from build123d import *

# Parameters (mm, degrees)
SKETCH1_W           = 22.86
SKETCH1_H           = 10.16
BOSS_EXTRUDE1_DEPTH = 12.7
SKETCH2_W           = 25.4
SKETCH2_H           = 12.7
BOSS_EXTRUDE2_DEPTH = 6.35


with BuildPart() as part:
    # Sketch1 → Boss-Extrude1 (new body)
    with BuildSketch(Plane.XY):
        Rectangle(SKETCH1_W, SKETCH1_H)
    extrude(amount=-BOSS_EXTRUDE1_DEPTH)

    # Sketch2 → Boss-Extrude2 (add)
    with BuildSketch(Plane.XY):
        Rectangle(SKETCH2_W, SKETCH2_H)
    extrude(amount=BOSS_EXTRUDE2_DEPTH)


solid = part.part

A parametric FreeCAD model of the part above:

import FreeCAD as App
import Part
import Sketcher

V = App.Vector
Q = App.Units.Quantity


def add_polygon(sketch, points):
    """Adds a closed chain of lines whose ends are joined by coincident constraints."""
    first, n = sketch.GeometryCount, len(points)
    for a, b in zip(points, points[1:] + points[:1]):
        sketch.addGeometry(Part.LineSegment(App.Vector(*a, 0), App.Vector(*b, 0)), False)
    for i in range(n):
        sketch.addConstraint(Sketcher.Constraint("Coincident", first + i, 2, first + (i + 1) % n, 1))

doc = App.newDocument("Part")
body = doc.addObject("PartDesign::Body", "Body")

# Sketch on XY plane
sketch1 = body.newObject("Sketcher::SketchObject", "Sketch")
sketch1.AttachmentSupport = (doc.getObject("XY_Plane"), [""])
sketch1.MapMode = "FlatFace"
add_polygon(sketch1, [(-11, 5), (-11, -5), (11, -5), (11, 5)])  # lines 0-3
sketch1.addConstraint(Sketcher.Constraint("Vertical", 0))
sketch1.addConstraint(Sketcher.Constraint("Horizontal", 1))
sketch1.addConstraint(Sketcher.Constraint("Vertical", 2))
sketch1.addConstraint(Sketcher.Constraint("Horizontal", 3))
sketch1.addConstraint(Sketcher.Constraint("Symmetric", 0, 2, 2, 2, -1, 1))
sketch1.addConstraint(Sketcher.Constraint("DistanceX", 1, 1, 1, 2, Q("0.9 in")))
sketch1.addConstraint(Sketcher.Constraint("DistanceY", 0, 2, 0, 1, Q("0.4 in")))
pad1 = body.newObject("PartDesign::Pad", "Pad")
pad1.Profile = sketch1
pad1.Length = Q("0.5 in")
pad1.Reversed = True

# Sketch on XY plane
sketch2 = body.newObject("Sketcher::SketchObject", "Sketch001")
sketch2.AttachmentSupport = (doc.getObject("XY_Plane"), [""])
sketch2.MapMode = "FlatFace"
add_polygon(sketch2, [(-13, 6), (-13, -6), (13, -6), (13, 6)])  # lines 0-3
sketch2.addConstraint(Sketcher.Constraint("Vertical", 0))
sketch2.addConstraint(Sketcher.Constraint("Horizontal", 1))
sketch2.addConstraint(Sketcher.Constraint("Vertical", 2))
sketch2.addConstraint(Sketcher.Constraint("Horizontal", 3))
sketch2.addConstraint(Sketcher.Constraint("Symmetric", 0, 2, 2, 2, -1, 1))
sketch2.addConstraint(Sketcher.Constraint("DistanceX", 1, 1, 1, 2, Q("1 in")))
sketch2.addConstraint(Sketcher.Constraint("DistanceY", 0, 2, 0, 1, Q("0.5 in")))
pad2 = body.newObject("PartDesign::Pad", "Pad001")
pad2.Profile = sketch2
pad2.Length = Q("0.25 in")

doc.recompute()
